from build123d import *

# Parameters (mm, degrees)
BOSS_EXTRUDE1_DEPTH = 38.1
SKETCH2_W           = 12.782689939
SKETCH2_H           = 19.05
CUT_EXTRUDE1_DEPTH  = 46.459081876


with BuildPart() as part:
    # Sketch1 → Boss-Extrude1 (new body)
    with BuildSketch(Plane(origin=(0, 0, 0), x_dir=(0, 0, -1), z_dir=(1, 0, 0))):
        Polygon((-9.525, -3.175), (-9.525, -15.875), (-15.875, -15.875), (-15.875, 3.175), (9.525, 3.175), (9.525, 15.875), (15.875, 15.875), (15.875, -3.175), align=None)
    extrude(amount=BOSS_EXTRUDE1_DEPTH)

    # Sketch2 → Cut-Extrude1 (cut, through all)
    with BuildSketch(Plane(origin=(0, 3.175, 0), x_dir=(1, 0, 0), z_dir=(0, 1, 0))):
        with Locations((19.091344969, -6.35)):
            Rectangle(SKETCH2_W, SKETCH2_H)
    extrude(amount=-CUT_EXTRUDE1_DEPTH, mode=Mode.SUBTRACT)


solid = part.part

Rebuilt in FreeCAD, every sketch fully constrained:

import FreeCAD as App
import Part
import Sketcher
from FreeCAD import Vector
Q = App.Units.Quantity


def add_polygon(sketch, points):
    """Adds a closed chain of lines whose ends are joined by coincident constraints."""
    first, n = sketch.GeometryCount, len(points)
    for a, b in zip(points, points[1:] + points[:1]):
        sketch.addGeometry(Part.LineSegment(App.Vector(*a, 0), App.Vector(*b, 0)), False)
    for i in range(n):
        sketch.addConstraint(Sketcher.Constraint("Coincident", first + i, 2, first + (i + 1) % n, 1))

doc = App.newDocument("Part")
body = doc.addObject("PartDesign::Body", "Body")

sketch1 = doc.addObject("Sketcher::SketchObject", "Sketch")
body.addObject(sketch1)
sketch1.AttachmentSupport = (doc.YZ_Plane, [""])
sketch1.MapMode = "FlatFace"
add_polygon(sketch1, [(-16, 10), (-3, 10), (-3, -16), (16, -16), (16, -10), (3, -10), (3, 16), (-16, 16)])
sketch1.addConstraint([
    Sketcher.Constraint("Horizontal", 0),
    Sketcher.Constraint("Vertical", 1),
    Sketcher.Constraint("Horizontal", 2),
    Sketcher.Constraint("Vertical", 3),
    Sketcher.Constraint("Horizontal", 4),
    Sketcher.Constraint("Vertical", 5),
    Sketcher.Constraint("Horizontal", 6),
    Sketcher.Constraint("Vertical", 7),
    Sketcher.Constraint("Symmetric", 0, 2, 4, 2, -1, 1),
    Sketcher.Constraint("Symmetric", 2, 2, 6, 2, -1, 1),
    Sketcher.Constraint("DistanceY", 1, 2, 1, 1, Q("1 in")),
    Sketcher.Constraint("DistanceX", 0, 1, 0, 2, Q("0.5 in")),
    Sketcher.Constraint("DistanceX", 2, 1, 2, 2, Q("0.75 in")),
    Sketcher.Constraint("DistanceY", 3, 1, 3, 2, Q("0.25 in")),
])
pad1 = doc.addObject("PartDesign::Pad", "Pad")
body.addObject(pad1)
pad1.Profile = sketch1
pad1.Length = Q("1.5 in")

sketch2 = doc.addObject("Sketcher::SketchObject", "Sketch001")
body.addObject(sketch2)
sketch2.AttachmentSupport = (doc.XZ_Plane, [""])
sketch2.MapMode = "FlatFace"
sketch2.AttachmentOffset = App.Placement(Vector(0, 0, -0.125 * 25.4), App.Rotation())
add_polygon(sketch2, [(13, -3), (13, 16), (25, 16), (25, -3)])
sketch2.addConstraint([
    Sketcher.Constraint("Vertical", 0),
    Sketcher.Constraint("Horizontal", 1),
    Sketcher.Constraint("Vertical", 2),
    Sketcher.Constraint("Horizontal", 3),
    Sketcher.Constraint("DistanceY", 0, 1, 0, 2, Q("0.75 in")),
    Sketcher.Constraint("DistanceX", -1, 1, 0, 2, Q("0.5 in")),
    Sketcher.Constraint("DistanceY", -1, 1, 0, 2, Q("0.625 in")),
    Sketcher.Constraint("DistanceX", 1, 1, 1, 2, Q("12.78269 mm")),
])
pocket1 = doc.addObject("PartDesign::Pocket", "Pocket")
body.addObject(pocket1)
pocket1.Profile = sketch2
pocket1.Type = "ThroughAll"
pocket1.Reversed = True

doc.recompute()
